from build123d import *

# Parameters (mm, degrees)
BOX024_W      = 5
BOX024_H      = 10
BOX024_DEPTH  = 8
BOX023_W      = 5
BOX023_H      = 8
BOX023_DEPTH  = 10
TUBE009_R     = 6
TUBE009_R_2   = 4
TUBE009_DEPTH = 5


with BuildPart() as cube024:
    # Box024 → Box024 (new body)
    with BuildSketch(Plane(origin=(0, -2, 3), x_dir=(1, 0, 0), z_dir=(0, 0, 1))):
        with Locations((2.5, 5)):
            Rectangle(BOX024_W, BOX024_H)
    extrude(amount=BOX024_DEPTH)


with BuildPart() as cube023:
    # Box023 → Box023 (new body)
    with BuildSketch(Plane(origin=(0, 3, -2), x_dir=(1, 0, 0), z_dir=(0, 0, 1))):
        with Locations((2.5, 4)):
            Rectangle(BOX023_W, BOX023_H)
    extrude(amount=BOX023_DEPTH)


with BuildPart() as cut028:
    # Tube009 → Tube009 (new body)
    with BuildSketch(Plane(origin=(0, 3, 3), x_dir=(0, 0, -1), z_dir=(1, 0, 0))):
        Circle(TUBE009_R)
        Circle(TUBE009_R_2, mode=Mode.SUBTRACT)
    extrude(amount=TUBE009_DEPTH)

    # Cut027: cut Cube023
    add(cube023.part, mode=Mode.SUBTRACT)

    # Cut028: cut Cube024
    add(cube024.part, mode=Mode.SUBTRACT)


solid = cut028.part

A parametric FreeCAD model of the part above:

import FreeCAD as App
import Part
import Sketcher
Q = App.Units.Quantity


def add_polygon(sketch, points):
    """Adds a closed chain of lines whose ends are joined by coincident constraints."""
    first, n = sketch.GeometryCount, len(points)
    for a, b in zip(points, points[1:] + points[:1]):
        sketch.addGeometry(Part.LineSegment(App.Vector(*a, 0), App.Vector(*b, 0)), False)
    for i in range(n):
        sketch.addConstraint(Sketcher.Constraint("Coincident", first + i, 2, first + (i + 1) % n, 1))

doc = App.newDocument("Part")
body = doc.addObject("PartDesign::Body", "Body")

# Sketch on XY plane
sketch1 = body.newObject("Sketcher::SketchObject", "Sketch")
sketch1.AttachmentSupport = (doc.getObject("XY_Plane"), [""])
sketch1.MapMode = "FlatFace"
sketch1.AttachmentOffset = App.Placement(App.Vector(0, 0, 3), App.Rotation())
add_polygon(sketch1, [(0, 8), (0, -2), (5, -2), (5, 8)])  # lines 0-3
sketch1.addConstraint(Sketcher.Constraint("Vertical", 0))
sketch1.addConstraint(Sketcher.Constraint("Horizontal", 1))
sketch1.addConstraint(Sketcher.Constraint("Vertical", 2))
sketch1.addConstraint(Sketcher.Constraint("Horizontal", 3))
sketch1.addConstraint(Sketcher.Constraint("PointOnObject", 0, 2, -2))
sketch1.addConstraint(Sketcher.Constraint("DistanceX", 1, 1, 1, 2, Q("5 mm")))
sketch1.addConstraint(Sketcher.Constraint("DistanceY", 0, 2, 0, 1, Q("10 mm")))
sketch1.addConstraint(Sketcher.Constraint("DistanceY", 0, 2, -1, 1, Q("2 mm")))
pad1 = body.newObject("PartDesign::Pad", "Pad")
pad1.Profile = sketch1
pad1.Length = 8
body2 = doc.addObject("PartDesign::Body", "Body001")

# Sketch on XY plane
sketch2 = body2.newObject("Sketcher::SketchObject", "Sketch001")
sketch2.AttachmentSupport = (doc.getObject("XY_Plane001"), [""])
sketch2.MapMode = "FlatFace"
sketch2.AttachmentOffset = App.Placement(App.Vector(0, 0, -2), App.Rotation())
add_polygon(sketch2, [(0, 11), (0, 3), (5, 3), (5, 11)])  # lines 0-3
sketch2.addConstraint(Sketcher.Constraint("Vertical", 0))
sketch2.addConstraint(Sketcher.Constraint("Horizontal", 1))
sketch2.addConstraint(Sketcher.Constraint("Vertical", 2))
sketch2.addConstraint(Sketcher.Constraint("Horizontal", 3))
sketch2.addConstraint(Sketcher.Constraint("PointOnObject", 0, 2, -2))
sketch2.addConstraint(Sketcher.Constraint("DistanceX", 1, 1, 1, 2, Q("5 mm")))
sketch2.addConstraint(Sketcher.Constraint("DistanceY", 0, 2, 0, 1, Q("8 mm")))
sketch2.addConstraint(Sketcher.Constraint("DistanceY", -1, 1, 0, 2, Q("3 mm")))
pad2 = body2.newObject("PartDesign::Pad", "Pad001")
pad2.Profile = sketch2
pad2.Length = 10
body3 = doc.addObject("PartDesign::Body", "Body002")

# Sketch on YZ plane
sketch3 = body3.newObject("Sketcher::SketchObject", "Sketch002")
sketch3.AttachmentSupport = (doc.getObject("YZ_Plane002"), [""])
sketch3.MapMode = "FlatFace"
sketch3.addGeometry(Part.Circle(App.Vector(3, 3, 0), App.Vector(0, 0, 1), 6), False)
sketch3.addGeometry(Part.Circle(App.Vector(3, 3, 0), App.Vector(0, 0, 1), 4), False)
sketch3.addConstraint(Sketcher.Constraint("Coincident", 1, 3, 0, 3))
sketch3.addConstraint(Sketcher.Constraint("Diameter", 0, Q("12 mm")))
sketch3.addConstraint(Sketcher.Constraint("Diameter", 1, Q("8 mm")))
sketch3.addConstraint(Sketcher.Constraint("DistanceX", -1, 1, 0, 3, Q("3 mm")))
sketch3.addConstraint(Sketcher.Constraint("DistanceY", -1, 1, 0, 3, Q("3 mm")))
pad3 = body3.newObject("PartDesign::Pad", "Pad002")
pad3.Profile = sketch3
pad3.Length = 5
doc.recompute()

boolean = body3.newObject("PartDesign::Boolean", "Boolean")
boolean.Type = "Cut"
boolean.addObjects([body2])
doc.recompute()

boolean2 = body3.newObject("PartDesign::Boolean", "Boolean001")
boolean2.Type = "Cut"
boolean2.addObjects([body])

doc.recompute()
